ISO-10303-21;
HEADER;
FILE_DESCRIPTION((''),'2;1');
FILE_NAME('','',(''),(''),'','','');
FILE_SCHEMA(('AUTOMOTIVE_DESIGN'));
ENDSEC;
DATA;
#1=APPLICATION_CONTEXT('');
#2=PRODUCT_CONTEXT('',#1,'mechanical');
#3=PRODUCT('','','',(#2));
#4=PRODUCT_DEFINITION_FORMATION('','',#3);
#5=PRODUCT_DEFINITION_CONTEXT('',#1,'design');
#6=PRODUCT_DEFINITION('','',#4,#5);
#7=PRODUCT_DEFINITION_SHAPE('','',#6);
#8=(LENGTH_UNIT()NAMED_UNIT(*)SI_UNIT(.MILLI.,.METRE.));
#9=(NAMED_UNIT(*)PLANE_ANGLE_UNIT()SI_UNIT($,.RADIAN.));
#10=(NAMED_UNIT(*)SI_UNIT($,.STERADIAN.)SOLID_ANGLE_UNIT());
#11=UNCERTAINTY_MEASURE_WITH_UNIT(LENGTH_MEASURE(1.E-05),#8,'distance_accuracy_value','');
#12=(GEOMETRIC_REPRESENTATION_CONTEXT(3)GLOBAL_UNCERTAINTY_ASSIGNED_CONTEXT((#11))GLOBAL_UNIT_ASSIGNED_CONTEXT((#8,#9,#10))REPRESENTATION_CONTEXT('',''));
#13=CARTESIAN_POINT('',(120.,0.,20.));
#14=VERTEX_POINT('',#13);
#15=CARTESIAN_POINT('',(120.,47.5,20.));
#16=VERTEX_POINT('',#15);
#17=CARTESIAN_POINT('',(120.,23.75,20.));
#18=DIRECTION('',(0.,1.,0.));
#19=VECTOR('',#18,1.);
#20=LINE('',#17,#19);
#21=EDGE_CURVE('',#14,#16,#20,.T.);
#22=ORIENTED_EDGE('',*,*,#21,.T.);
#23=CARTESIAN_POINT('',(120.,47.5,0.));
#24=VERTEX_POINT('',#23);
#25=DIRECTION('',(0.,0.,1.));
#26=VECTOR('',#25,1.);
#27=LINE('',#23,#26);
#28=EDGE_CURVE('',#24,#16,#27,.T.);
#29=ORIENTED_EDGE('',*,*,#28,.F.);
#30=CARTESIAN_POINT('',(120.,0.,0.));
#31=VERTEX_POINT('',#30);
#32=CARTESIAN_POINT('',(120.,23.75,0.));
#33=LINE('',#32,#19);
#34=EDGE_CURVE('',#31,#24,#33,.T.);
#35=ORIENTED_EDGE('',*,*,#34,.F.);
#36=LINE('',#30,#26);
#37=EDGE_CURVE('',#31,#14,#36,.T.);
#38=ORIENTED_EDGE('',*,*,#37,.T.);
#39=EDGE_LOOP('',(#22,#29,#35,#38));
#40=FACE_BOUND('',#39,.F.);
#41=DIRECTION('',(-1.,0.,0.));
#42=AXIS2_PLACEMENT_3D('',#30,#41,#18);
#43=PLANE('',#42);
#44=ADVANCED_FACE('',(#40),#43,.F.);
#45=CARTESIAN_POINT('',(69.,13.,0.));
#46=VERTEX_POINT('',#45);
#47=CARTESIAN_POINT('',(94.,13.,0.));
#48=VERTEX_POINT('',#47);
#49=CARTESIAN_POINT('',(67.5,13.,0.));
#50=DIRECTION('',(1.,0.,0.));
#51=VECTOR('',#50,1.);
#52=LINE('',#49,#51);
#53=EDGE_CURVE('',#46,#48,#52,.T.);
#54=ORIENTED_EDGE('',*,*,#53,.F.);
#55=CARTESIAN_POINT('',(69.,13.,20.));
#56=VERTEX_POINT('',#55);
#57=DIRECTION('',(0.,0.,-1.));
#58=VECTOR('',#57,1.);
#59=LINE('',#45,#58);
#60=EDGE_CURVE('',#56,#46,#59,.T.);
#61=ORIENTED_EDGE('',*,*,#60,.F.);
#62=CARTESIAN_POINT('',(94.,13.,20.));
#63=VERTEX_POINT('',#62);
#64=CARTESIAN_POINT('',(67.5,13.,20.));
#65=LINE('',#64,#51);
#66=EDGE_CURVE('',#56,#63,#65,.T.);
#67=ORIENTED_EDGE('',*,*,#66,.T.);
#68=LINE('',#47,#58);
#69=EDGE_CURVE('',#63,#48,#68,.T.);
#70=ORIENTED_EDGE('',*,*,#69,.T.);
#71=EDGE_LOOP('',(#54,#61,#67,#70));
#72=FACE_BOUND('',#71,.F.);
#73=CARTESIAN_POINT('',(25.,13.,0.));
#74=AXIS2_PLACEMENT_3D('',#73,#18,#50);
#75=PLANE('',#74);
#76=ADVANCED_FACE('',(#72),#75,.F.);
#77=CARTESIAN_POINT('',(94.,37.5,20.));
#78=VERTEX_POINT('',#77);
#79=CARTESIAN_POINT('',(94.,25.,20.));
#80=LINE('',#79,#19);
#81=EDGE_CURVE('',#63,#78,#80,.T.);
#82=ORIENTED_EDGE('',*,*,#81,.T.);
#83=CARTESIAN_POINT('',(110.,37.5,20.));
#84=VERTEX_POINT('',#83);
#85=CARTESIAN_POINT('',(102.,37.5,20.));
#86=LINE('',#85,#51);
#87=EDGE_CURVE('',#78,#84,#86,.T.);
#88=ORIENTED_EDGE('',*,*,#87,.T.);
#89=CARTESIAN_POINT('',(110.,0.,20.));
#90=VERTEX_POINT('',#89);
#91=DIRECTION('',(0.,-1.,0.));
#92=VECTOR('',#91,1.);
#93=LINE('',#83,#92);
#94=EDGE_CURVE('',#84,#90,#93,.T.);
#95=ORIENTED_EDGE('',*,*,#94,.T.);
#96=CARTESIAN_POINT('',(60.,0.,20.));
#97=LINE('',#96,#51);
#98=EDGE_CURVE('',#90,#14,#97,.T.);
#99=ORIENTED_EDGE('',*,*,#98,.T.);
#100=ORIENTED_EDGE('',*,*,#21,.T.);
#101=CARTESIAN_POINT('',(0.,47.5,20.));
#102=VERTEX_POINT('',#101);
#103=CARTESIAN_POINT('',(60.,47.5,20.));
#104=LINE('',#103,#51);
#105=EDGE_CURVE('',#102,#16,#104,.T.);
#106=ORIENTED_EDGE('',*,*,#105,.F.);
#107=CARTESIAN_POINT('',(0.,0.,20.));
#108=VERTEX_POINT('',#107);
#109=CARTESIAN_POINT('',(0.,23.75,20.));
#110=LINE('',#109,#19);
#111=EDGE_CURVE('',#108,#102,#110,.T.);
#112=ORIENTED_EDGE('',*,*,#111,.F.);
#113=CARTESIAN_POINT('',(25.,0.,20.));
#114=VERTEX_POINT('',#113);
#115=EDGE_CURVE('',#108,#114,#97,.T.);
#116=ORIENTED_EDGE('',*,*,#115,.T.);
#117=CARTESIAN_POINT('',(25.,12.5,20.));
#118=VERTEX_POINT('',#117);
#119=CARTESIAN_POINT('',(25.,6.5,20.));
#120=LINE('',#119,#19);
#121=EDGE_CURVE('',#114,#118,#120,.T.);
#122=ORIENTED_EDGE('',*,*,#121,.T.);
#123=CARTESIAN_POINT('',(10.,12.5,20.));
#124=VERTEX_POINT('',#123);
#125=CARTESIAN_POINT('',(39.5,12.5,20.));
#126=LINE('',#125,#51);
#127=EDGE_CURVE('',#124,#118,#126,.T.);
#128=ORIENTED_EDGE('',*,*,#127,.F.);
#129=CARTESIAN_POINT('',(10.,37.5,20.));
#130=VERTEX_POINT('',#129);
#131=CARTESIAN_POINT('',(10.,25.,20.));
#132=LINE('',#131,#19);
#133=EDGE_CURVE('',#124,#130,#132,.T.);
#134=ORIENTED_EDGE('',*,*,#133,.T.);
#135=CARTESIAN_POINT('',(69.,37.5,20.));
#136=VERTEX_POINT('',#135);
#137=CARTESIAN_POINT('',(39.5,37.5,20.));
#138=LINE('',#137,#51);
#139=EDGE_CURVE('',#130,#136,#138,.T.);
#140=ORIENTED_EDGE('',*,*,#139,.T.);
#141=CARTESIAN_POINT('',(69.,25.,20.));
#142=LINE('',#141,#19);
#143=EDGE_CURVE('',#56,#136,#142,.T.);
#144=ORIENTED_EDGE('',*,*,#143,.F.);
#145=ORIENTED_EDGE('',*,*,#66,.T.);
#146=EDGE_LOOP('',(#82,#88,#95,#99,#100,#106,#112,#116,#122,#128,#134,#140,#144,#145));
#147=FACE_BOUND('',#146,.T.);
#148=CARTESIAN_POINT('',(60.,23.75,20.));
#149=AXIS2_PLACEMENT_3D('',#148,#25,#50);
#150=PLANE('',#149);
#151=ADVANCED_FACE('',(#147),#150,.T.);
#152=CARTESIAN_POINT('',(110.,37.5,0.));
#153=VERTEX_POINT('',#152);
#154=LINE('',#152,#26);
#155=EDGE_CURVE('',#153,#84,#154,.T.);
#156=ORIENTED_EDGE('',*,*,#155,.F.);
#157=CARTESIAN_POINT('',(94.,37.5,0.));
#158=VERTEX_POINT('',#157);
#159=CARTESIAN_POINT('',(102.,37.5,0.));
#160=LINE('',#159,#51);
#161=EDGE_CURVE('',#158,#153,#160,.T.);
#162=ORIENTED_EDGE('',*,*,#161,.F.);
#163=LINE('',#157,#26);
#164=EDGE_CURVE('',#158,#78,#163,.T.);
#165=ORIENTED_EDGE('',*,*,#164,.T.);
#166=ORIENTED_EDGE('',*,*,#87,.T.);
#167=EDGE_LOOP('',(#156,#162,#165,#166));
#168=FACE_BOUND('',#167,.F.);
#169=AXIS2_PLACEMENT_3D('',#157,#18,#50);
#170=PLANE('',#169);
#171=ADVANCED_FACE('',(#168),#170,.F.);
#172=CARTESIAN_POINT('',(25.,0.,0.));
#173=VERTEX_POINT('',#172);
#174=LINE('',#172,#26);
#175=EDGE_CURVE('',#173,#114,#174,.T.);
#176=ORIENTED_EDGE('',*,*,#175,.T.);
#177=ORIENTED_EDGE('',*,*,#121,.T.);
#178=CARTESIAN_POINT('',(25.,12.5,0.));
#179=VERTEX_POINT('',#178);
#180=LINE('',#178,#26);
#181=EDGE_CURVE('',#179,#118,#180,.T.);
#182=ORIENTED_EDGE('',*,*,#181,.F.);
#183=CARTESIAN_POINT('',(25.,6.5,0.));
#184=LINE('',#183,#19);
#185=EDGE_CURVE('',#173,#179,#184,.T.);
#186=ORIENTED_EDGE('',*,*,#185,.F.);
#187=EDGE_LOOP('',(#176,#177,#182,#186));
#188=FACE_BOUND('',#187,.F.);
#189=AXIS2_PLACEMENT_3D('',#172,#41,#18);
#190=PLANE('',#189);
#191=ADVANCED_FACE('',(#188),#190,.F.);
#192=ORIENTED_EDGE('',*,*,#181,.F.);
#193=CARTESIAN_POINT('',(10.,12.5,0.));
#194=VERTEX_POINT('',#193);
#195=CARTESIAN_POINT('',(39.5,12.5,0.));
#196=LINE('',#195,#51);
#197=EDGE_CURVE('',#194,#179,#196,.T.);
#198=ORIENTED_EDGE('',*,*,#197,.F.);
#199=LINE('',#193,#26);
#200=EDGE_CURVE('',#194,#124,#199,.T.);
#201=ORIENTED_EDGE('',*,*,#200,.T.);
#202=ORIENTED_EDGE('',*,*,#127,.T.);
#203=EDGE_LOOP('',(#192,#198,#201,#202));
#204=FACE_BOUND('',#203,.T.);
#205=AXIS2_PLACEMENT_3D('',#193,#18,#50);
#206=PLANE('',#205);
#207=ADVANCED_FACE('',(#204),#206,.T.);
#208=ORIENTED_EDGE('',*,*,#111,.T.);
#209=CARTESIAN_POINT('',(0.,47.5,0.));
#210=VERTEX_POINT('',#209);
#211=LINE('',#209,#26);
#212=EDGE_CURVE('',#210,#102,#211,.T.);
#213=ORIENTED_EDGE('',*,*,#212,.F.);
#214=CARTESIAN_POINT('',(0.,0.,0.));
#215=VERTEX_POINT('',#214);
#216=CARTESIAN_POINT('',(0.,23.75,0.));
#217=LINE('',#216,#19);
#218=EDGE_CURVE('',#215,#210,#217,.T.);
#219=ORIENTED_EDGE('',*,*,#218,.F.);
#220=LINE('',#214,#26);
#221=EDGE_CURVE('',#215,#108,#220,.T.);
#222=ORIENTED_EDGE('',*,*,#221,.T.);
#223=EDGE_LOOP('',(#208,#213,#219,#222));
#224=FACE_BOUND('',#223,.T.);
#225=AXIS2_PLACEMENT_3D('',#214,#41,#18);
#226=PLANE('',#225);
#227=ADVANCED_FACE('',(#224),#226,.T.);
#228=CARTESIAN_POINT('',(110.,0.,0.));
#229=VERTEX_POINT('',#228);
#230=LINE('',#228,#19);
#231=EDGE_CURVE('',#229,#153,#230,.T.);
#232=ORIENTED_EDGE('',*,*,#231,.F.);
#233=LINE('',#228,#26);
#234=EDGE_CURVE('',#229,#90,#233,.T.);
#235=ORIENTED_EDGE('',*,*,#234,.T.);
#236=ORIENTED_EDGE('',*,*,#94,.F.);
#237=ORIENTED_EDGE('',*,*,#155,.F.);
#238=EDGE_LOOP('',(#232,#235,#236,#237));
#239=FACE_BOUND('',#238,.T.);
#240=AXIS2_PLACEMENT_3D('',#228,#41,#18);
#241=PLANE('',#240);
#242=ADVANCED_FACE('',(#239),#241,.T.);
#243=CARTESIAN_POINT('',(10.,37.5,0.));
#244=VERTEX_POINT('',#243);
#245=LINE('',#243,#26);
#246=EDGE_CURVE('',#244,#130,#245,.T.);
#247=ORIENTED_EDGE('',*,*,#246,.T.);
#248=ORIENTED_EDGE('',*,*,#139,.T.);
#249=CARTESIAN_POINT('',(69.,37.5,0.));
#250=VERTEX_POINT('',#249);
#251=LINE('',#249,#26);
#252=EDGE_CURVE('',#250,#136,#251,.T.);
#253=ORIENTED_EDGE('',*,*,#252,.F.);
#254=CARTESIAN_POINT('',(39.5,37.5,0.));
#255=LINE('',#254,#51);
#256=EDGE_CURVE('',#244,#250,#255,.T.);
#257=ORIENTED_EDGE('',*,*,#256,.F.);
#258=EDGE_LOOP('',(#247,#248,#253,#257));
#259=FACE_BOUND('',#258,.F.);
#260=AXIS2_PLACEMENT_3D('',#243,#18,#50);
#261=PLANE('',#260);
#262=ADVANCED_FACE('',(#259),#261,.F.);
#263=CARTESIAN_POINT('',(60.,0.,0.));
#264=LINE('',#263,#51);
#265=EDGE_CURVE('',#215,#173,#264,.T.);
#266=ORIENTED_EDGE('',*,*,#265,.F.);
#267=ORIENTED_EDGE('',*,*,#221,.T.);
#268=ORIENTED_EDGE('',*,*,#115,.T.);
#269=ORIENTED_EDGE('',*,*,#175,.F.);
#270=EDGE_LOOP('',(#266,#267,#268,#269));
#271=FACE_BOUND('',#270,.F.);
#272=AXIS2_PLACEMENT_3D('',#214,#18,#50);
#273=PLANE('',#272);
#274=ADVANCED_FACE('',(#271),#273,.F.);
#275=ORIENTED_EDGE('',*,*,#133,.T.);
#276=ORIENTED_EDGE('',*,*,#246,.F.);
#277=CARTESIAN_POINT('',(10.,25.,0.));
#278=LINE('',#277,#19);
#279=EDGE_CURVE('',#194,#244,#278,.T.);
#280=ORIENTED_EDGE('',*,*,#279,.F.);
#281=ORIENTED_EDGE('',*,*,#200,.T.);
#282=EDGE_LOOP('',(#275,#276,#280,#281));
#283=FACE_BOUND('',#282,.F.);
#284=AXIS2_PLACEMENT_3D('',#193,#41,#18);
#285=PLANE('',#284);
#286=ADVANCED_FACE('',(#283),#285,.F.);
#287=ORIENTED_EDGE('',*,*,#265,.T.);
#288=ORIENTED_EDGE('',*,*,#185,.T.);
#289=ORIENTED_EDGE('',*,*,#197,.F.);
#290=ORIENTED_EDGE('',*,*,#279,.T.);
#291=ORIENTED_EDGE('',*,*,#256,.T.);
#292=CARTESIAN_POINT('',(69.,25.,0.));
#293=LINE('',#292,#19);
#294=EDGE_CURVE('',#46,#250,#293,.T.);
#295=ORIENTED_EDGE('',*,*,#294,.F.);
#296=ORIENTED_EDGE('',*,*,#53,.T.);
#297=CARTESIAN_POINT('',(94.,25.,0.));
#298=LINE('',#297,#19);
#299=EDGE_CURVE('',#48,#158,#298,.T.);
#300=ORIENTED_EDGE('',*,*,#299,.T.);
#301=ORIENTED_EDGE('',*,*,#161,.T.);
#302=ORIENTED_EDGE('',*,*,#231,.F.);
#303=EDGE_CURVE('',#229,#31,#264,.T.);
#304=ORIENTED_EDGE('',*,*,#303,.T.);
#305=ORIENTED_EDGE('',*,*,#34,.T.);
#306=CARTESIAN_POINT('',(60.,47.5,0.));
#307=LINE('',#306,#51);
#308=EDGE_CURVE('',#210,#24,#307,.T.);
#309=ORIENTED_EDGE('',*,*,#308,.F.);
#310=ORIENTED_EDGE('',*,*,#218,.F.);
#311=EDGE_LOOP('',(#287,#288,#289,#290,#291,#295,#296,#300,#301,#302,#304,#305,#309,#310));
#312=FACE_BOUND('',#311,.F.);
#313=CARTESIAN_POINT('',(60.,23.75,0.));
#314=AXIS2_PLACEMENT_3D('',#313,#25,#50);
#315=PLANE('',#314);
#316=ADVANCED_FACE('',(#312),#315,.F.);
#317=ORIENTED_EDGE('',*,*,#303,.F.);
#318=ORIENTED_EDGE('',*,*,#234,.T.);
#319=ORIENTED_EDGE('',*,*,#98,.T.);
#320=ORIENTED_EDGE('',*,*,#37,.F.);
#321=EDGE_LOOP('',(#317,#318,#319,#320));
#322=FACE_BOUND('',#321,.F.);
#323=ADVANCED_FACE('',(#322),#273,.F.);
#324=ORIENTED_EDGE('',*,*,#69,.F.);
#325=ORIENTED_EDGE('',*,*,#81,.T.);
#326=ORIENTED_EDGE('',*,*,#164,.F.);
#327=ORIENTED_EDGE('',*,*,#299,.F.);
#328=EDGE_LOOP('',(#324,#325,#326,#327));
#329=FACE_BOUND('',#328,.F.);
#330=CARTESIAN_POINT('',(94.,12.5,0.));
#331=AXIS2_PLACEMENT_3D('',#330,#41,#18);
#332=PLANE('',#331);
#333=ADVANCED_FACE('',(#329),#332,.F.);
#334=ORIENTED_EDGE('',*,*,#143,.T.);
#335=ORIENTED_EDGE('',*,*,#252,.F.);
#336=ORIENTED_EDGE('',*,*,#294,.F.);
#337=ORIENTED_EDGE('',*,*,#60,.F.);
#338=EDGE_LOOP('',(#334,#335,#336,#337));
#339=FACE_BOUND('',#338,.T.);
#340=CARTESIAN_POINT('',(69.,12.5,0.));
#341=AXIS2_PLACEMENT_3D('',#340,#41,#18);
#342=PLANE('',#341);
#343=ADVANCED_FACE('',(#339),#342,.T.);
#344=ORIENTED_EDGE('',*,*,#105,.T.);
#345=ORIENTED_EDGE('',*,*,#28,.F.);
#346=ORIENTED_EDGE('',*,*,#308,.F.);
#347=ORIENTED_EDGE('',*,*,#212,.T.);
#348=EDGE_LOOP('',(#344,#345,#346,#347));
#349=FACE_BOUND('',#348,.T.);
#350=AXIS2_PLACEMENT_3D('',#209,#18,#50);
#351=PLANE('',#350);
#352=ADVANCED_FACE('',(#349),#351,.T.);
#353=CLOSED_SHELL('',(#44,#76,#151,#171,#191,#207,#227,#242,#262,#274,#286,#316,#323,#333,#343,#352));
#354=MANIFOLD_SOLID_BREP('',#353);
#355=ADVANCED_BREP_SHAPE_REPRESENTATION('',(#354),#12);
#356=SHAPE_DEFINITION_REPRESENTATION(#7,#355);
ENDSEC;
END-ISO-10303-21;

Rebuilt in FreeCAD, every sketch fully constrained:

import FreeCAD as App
import Part
import Sketcher

V = App.Vector

doc = App.newDocument("Part")
body = doc.addObject("PartDesign::Body", "Body")

# Sketch on XY plane
sketch1 = body.newObject("Sketcher::SketchObject", "Sketch")
sketch1.AttachmentSupport = (doc.getObject("XY_Plane"), [""])
sketch1.MapMode = "FlatFace"
sketch1.addGeometry([
    Part.LineSegment(V(25, 13, 0), V(25, 0, 0)),
    Part.LineSegment(V(25, 0, 0), V(110, 0, 0)),
    Part.LineSegment(V(110, 0, 0), V(110, 13, 0)),
    Part.LineSegment(V(110, 13, 0), V(25, 13, 0)),
], False)
sketch1.addConstraint([
    Sketcher.Constraint("Coincident", 0, 2, 1, 1),
    Sketcher.Constraint("Coincident", 1, 2, 2, 1),
    Sketcher.Constraint("Coincident", 2, 2, 3, 1),
    Sketcher.Constraint("Coincident", 3, 2, 0, 1),
    Sketcher.Constraint("Vertical", 0),
    Sketcher.Constraint("Horizontal", 1),
    Sketcher.Constraint("Vertical", 2),
    Sketcher.Constraint("Horizontal", 3),
    Sketcher.Constraint("PointOnObject", 0, 2, -1),
    Sketcher.Constraint("DistanceX", 1, 1, 1, 2, 85.0),
    Sketcher.Constraint("DistanceY", 0, 2, 0, 1, 13.0),
    Sketcher.Constraint("DistanceX", -1, 1, 0, 2, 25.0),
])
pad1 = body.newObject("PartDesign::Pad", "Pad")
pad1.Profile = sketch1
pad1.Length = 20
body2 = doc.addObject("PartDesign::Body", "Body001")

# Sketch on XY plane
sketch2 = body2.newObject("Sketcher::SketchObject", "Sketch001")
sketch2.AttachmentSupport = (doc.getObject("XY_Plane001"), [""])
sketch2.MapMode = "FlatFace"
sketch2.addGeometry([
    Part.LineSegment(V(94, 38, 0), V(94, 12, 0)),
    Part.LineSegment(V(94, 12, 0), V(110, 12, 0)),
    Part.LineSegment(V(110, 12, 0), V(110, 38, 0)),
    Part.LineSegment(V(110, 38, 0), V(94, 38, 0)),
], False)
sketch2.addConstraint([
    Sketcher.Constraint("Coincident", 0, 2, 1, 1),
    Sketcher.Constraint("Coincident", 1, 2, 2, 1),
    Sketcher.Constraint("Coincident", 2, 2, 3, 1),
    Sketcher.Constraint("Coincident", 3, 2, 0, 1),
    Sketcher.Constraint("Vertical", 0),
    Sketcher.Constraint("Horizontal", 1),
    Sketcher.Constraint("Vertical", 2),
    Sketcher.Constraint("Horizontal", 3),
    Sketcher.Constraint("DistanceX", 1, 1, 1, 2, 16.0),
    Sketcher.Constraint("DistanceY", 0, 2, 0, 1, 25.0),
    Sketcher.Constraint("DistanceX", -1, 1, 0, 2, 94.0),
    Sketcher.Constraint("DistanceY", -1, 1, 0, 2, 12.5),
])
pad2 = body2.newObject("PartDesign::Pad", "Pad001")
pad2.Profile = sketch2
pad2.Length = 20
body3 = doc.addObject("PartDesign::Body", "Body002")

# Sketch on XY plane
sketch3 = body3.newObject("Sketcher::SketchObject", "Sketch002")
sketch3.AttachmentSupport = (doc.getObject("XY_Plane002"), [""])
sketch3.MapMode = "FlatFace"
sketch3.addGeometry([
    Part.LineSegment(V(10, 38, 0), V(10, 12, 0)),
    Part.LineSegment(V(10, 12, 0), V(69, 12, 0)),
    Part.LineSegment(V(69, 12, 0), V(69, 38, 0)),
    Part.LineSegment(V(69, 38, 0), V(10, 38, 0)),
], False)
sketch3.addConstraint([
    Sketcher.Constraint("Coincident", 0, 2, 1, 1),
    Sketcher.Constraint("Coincident", 1, 2, 2, 1),
    Sketcher.Constraint("Coincident", 2, 2, 3, 1),
    Sketcher.Constraint("Coincident", 3, 2, 0, 1),
    Sketcher.Constraint("Vertical", 0),
    Sketcher.Constraint("Horizontal", 1),
    Sketcher.Constraint("Vertical", 2),
    Sketcher.Constraint("Horizontal", 3),
    Sketcher.Constraint("DistanceX", 1, 1, 1, 2, 59.0),
    Sketcher.Constraint("DistanceY", 0, 2, 0, 1, 25.0),
    Sketcher.Constraint("DistanceX", -1, 1, 0, 2, 10.0),
    Sketcher.Constraint("DistanceY", -1, 1, 0, 2, 12.5),
])
pad3 = body3.newObject("PartDesign::Pad", "Pad002")
pad3.Profile = sketch3
pad3.Length = 20
body4 = doc.addObject("PartDesign::Body", "Body003")

# Sketch on XY plane
sketch4 = body4.newObject("Sketcher::SketchObject", "Sketch003")
sketch4.AttachmentSupport = (doc.getObject("XY_Plane003"), [""])
sketch4.MapMode = "FlatFace"
sketch4.addGeometry([
    Part.LineSegment(V(0, 48, 0), V(0, 0, 0)),
    Part.LineSegment(V(0, 0, 0), V(120, 0, 0)),
    Part.LineSegment(V(120, 0, 0), V(120, 48, 0)),
    Part.LineSegment(V(120, 48, 0), V(0, 48, 0)),
], False)
sketch4.addConstraint([
    Sketcher.Constraint("Coincident", 0, 2, 1, 1),
    Sketcher.Constraint("Coincident", 1, 2, 2, 1),
    Sketcher.Constraint("Coincident", 2, 2, 3, 1),
    Sketcher.Constraint("Coincident", 3, 2, 0, 1),
    Sketcher.Constraint("Vertical", 0),
    Sketcher.Constraint("Horizontal", 1),
    Sketcher.Constraint("Vertical", 2),
    Sketcher.Constraint("Horizontal", 3),
    Sketcher.Constraint("Coincident", 0, 2, -1, 1),
    Sketcher.Constraint("DistanceX", 1, 1, 1, 2, 120.0),
    Sketcher.Constraint("DistanceY", 0, 2, 0, 1, 47.5),
])
pad4 = body4.newObject("PartDesign::Pad", "Pad003")
pad4.Profile = sketch4
pad4.Length = 20
doc.recompute()

boolean = body4.newObject("PartDesign::Boolean", "Boolean")
boolean.Type = "Cut"
boolean.addObjects([body3])
doc.recompute()

boolean2 = body4.newObject("PartDesign::Boolean", "Boolean001")
boolean2.Type = "Cut"
boolean2.addObjects([body2])
doc.recompute()

boolean3 = body4.newObject("PartDesign::Boolean", "Boolean002")
boolean3.Type = "Cut"
boolean3.addObjects([body])

doc.recompute()
